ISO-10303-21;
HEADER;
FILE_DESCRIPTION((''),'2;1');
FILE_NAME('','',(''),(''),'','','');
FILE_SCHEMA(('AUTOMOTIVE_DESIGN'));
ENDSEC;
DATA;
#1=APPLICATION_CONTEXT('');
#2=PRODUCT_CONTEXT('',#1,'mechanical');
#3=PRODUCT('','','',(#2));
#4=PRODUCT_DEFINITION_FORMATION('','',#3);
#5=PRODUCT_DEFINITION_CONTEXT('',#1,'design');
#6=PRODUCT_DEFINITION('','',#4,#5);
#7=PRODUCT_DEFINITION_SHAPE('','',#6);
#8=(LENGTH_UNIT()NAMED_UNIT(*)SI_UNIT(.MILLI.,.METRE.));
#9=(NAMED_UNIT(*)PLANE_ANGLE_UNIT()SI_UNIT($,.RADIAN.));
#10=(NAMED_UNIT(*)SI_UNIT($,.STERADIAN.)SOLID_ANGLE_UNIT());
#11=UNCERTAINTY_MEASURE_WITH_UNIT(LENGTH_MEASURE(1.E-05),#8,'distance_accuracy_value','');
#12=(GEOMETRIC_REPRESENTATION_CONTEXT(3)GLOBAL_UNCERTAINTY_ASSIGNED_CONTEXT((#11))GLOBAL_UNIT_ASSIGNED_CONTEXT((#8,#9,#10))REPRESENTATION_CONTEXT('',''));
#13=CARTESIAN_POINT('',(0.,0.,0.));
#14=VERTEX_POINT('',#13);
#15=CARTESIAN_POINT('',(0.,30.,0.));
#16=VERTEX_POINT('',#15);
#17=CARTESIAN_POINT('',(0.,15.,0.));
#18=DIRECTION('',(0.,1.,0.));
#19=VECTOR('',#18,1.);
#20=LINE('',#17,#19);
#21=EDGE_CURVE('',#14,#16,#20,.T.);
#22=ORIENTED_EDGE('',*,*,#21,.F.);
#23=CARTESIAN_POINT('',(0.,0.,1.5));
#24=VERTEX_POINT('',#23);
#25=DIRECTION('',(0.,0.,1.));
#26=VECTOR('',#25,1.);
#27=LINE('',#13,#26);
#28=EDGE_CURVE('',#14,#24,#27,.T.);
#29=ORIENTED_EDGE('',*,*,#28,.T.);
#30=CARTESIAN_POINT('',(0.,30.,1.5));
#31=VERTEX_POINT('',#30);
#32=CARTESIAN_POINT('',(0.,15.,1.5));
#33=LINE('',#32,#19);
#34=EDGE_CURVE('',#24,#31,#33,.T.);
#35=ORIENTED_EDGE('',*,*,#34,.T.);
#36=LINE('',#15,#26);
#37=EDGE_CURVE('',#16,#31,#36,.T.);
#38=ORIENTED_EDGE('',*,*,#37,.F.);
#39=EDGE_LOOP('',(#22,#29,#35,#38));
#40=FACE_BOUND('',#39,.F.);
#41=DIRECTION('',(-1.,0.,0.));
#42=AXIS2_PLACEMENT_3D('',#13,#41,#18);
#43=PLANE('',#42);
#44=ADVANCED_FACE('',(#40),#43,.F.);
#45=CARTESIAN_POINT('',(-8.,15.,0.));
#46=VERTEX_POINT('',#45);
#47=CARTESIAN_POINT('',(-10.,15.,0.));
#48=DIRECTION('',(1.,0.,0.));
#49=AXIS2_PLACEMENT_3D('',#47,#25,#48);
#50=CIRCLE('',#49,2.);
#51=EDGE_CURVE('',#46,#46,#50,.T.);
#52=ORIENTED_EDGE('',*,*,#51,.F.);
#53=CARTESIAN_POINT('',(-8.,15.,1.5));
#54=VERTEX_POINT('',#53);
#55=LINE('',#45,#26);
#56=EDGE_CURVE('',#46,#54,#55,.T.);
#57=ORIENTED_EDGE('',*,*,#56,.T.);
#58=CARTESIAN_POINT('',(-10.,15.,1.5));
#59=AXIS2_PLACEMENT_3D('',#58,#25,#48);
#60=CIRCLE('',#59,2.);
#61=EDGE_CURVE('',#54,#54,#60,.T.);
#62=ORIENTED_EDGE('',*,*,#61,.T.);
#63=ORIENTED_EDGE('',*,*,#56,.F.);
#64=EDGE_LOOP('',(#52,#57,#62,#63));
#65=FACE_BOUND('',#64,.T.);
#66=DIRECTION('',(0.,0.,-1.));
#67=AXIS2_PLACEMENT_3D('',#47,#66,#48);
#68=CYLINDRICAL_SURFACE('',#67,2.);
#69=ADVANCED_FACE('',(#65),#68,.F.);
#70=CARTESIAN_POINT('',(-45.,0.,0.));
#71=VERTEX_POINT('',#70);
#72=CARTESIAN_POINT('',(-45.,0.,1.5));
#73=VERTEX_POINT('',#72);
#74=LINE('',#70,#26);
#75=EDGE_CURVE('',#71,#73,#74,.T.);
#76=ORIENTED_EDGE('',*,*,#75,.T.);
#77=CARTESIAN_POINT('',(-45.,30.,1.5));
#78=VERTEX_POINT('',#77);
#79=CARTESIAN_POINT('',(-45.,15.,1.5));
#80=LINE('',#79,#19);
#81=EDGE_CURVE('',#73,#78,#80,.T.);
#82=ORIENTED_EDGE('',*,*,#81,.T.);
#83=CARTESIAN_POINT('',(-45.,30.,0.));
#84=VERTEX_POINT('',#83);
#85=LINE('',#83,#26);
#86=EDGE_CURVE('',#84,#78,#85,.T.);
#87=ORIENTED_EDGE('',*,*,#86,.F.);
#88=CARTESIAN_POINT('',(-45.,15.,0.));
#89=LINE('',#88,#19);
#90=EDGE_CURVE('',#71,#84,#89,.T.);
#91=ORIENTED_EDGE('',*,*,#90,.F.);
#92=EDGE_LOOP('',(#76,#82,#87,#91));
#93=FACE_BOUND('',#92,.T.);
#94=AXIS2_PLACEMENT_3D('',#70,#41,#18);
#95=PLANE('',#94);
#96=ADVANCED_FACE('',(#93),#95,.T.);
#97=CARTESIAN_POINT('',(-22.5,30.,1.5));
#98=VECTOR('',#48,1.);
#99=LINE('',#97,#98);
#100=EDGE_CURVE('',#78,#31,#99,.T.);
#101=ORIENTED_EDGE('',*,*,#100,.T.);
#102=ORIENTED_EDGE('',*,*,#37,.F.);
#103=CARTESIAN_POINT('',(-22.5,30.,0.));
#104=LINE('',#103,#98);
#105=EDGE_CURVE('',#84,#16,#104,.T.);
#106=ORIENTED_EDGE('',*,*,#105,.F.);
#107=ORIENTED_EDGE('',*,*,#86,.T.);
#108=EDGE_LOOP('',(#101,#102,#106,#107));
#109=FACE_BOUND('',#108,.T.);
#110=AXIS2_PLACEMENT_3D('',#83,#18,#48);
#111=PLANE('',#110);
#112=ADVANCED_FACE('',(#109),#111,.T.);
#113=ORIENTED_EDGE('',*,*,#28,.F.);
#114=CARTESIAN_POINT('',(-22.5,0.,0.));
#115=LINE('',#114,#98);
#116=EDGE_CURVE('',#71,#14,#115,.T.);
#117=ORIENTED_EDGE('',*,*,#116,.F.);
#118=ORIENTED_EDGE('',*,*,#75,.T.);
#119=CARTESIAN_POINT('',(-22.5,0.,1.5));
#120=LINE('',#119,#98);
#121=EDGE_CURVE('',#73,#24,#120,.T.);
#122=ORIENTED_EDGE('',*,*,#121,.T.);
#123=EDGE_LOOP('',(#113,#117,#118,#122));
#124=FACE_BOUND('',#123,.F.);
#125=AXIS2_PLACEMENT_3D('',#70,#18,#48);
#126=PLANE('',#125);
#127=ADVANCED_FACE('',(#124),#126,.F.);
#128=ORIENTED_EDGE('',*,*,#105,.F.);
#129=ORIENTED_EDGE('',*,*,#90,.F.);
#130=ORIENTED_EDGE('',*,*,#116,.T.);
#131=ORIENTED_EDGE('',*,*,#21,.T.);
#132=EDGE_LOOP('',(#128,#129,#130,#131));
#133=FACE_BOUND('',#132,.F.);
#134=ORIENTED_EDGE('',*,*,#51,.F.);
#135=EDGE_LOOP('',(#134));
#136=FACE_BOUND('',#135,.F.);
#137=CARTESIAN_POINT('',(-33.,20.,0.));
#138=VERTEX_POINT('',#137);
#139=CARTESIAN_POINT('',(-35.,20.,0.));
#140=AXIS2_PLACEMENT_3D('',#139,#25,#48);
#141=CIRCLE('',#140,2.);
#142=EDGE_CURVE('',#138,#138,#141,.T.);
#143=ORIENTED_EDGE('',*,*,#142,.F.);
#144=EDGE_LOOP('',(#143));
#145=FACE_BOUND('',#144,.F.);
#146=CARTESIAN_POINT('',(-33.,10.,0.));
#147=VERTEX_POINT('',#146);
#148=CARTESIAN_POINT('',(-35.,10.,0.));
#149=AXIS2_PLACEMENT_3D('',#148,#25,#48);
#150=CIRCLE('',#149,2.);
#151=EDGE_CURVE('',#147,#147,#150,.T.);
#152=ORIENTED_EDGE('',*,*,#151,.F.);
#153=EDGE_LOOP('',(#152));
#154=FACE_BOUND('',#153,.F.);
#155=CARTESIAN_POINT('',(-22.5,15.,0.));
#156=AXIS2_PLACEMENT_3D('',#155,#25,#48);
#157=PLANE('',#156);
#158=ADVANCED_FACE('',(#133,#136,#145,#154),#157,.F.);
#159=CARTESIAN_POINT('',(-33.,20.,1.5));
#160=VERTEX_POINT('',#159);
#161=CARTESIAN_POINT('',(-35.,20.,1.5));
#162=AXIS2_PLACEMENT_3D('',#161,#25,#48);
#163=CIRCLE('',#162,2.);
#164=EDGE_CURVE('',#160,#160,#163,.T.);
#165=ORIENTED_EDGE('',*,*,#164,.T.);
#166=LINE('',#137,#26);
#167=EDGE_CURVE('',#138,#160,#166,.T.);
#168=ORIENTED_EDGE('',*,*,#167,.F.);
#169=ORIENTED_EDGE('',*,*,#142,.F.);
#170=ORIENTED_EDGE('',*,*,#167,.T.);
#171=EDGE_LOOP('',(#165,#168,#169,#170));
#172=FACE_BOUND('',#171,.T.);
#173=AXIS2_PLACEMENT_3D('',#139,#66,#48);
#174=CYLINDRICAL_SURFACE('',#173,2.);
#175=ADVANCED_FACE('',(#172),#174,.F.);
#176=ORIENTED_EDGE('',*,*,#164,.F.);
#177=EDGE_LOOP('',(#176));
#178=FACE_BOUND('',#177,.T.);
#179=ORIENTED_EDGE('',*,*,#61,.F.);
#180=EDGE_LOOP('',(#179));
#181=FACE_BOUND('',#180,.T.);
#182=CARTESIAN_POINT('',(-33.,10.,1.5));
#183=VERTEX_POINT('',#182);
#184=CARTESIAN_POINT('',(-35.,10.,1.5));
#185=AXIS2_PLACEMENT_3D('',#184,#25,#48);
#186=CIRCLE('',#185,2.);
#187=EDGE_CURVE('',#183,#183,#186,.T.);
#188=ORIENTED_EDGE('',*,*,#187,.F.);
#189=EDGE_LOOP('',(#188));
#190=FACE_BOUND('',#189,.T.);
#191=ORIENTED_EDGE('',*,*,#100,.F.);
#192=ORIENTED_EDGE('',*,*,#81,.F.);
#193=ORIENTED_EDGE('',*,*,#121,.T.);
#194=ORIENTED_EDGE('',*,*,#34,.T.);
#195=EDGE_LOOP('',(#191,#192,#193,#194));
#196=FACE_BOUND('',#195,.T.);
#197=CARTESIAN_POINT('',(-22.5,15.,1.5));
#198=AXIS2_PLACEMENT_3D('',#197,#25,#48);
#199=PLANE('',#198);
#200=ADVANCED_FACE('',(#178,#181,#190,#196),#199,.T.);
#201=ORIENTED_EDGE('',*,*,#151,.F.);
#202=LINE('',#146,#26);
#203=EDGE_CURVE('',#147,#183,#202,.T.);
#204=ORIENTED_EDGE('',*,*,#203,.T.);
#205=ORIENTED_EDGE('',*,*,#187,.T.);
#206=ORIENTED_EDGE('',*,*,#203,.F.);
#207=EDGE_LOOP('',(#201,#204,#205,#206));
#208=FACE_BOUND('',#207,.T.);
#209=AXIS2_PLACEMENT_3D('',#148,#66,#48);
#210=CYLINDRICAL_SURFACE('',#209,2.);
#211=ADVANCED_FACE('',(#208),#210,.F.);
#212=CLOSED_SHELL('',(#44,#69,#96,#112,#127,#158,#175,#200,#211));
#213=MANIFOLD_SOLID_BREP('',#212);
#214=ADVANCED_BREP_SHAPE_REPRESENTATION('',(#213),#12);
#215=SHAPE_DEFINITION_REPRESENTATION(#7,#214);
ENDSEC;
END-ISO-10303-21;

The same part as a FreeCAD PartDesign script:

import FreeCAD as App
import Part
import Sketcher
Q = App.Units.Quantity


def add_polygon(sketch, points):
    """Adds a closed chain of lines whose ends are joined by coincident constraints."""
    first, n = sketch.GeometryCount, len(points)
    for a, b in zip(points, points[1:] + points[:1]):
        sketch.addGeometry(Part.LineSegment(App.Vector(*a, 0), App.Vector(*b, 0)), False)
    for i in range(n):
        sketch.addConstraint(Sketcher.Constraint("Coincident", first + i, 2, first + (i + 1) % n, 1))

doc = App.newDocument("Part")
body = doc.addObject("PartDesign::Body", "Body")

# Sketch on XY plane
sketch1 = body.newObject("Sketcher::SketchObject", "Sketch")
sketch1.AttachmentSupport = (doc.getObject("XY_Plane"), [""])
sketch1.MapMode = "FlatFace"
add_polygon(sketch1, [(-45, 30), (-45, 0), (0, 0), (0, 30)])  # lines 0-3
sketch1.addGeometry(Part.Circle(App.Vector(-35, 10, 0), App.Vector(0, 0, 1), 2), False)  # 4
sketch1.addGeometry(Part.Circle(App.Vector(-35, 20, 0), App.Vector(0, 0, 1), 2), False)  # 5
sketch1.addGeometry(Part.Circle(App.Vector(-10, 15, 0), App.Vector(0, 0, 1), 2), False)  # 6
sketch1.addConstraint([
    Sketcher.Constraint("Vertical", 0),
    Sketcher.Constraint("Horizontal", 1),
    Sketcher.Constraint("Vertical", 2),
    Sketcher.Constraint("Horizontal", 3),
    Sketcher.Constraint("Coincident", 1, 2, -1, 1),
    Sketcher.Constraint("Equal", 4, 5),
    Sketcher.Constraint("Equal", 5, 6),
    Sketcher.Constraint("Vertical", 4, 3, 5, 3),
    Sketcher.Constraint("Diameter", 4, Q("4 mm")),
    Sketcher.Constraint("DistanceX", 1, 1, 1, 2, Q("45 mm")),
    Sketcher.Constraint("DistanceY", 0, 2, 0, 1, Q("30 mm")),
    Sketcher.Constraint("DistanceX", 4, 3, -1, 1, Q("35 mm")),
    Sketcher.Constraint("DistanceY", -1, 1, 4, 3, Q("10 mm")),
    Sketcher.Constraint("DistanceY", -1, 1, 5, 3, Q("20 mm")),
    Sketcher.Constraint("DistanceX", 6, 3, -1, 1, Q("10 mm")),
    Sketcher.Constraint("DistanceY", -1, 1, 6, 3, Q("15 mm")),
])
pad1 = body.newObject("PartDesign::Pad", "Pad")
pad1.Profile = sketch1
pad1.Length = 1.5

doc.recompute()
